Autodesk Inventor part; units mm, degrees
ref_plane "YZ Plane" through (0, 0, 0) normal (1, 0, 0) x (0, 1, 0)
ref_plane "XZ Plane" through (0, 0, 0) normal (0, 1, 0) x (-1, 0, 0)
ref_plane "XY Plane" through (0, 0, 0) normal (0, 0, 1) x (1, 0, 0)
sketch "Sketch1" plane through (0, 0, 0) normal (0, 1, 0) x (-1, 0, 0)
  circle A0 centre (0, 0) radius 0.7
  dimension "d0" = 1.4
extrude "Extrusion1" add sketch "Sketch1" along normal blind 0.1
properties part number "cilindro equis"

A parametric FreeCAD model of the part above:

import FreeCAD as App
import Part
import Sketcher
from FreeCAD import Vector
Q = App.Units.Quantity

doc = App.newDocument("Part")
body = doc.addObject("PartDesign::Body", "Body")

sketch1 = body.newObject("Sketcher::SketchObject", "Sketch")
sketch1.AttachmentSupport = (doc.getObject("XZ_Plane"), [""])
sketch1.MapMode = "FlatFace"
sketch1.addGeometry(Part.Circle(Vector(0, 0, 0), Vector(0, 0, 1), 0.7), False)
sketch1.addConstraint([
    Sketcher.Constraint("Coincident", 0, 3, -1, 1),
    Sketcher.Constraint("Diameter", 0, Q("1.4 mm")),
])
pad1 = body.newObject("PartDesign::Pad", "Pad")
pad1.Profile = sketch1
pad1.Length = 0.1
pad1.Reversed = True

doc.recompute()
